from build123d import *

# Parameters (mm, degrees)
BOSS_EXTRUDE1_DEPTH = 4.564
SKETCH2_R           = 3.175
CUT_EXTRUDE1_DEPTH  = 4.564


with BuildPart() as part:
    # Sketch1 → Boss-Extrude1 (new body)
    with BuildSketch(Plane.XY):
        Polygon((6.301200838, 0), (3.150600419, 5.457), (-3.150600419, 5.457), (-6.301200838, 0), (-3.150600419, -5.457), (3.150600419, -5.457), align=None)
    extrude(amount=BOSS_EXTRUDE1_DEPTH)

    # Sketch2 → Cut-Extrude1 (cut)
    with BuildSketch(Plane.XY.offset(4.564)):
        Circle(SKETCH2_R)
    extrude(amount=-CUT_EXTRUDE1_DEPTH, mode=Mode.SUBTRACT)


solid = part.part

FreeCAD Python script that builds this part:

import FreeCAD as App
import Part
import Sketcher
from FreeCAD import Vector
Q = App.Units.Quantity


def add_polygon(sketch, points):
    """Adds a closed chain of lines whose ends are joined by coincident constraints."""
    first, n = sketch.GeometryCount, len(points)
    for a, b in zip(points, points[1:] + points[:1]):
        sketch.addGeometry(Part.LineSegment(App.Vector(*a, 0), App.Vector(*b, 0)), False)
    for i in range(n):
        sketch.addConstraint(Sketcher.Constraint("Coincident", first + i, 2, first + (i + 1) % n, 1))

doc = App.newDocument("Part")
params = doc.addObject("Spreadsheet::Sheet", "Params")
for row, (alias, value) in enumerate([
    ("pad1_length", "4.564 mm"),
    ("sketch2_diameter", "0.25 in"),
    ("pocket1_length", "4.564 mm"),
], start=1):
    params.set(f"A{row}", alias)
    params.set(f"B{row}", "=" + value)
    params.setAlias(f"B{row}", alias)

body = doc.addObject("PartDesign::Body", "Body")

# Sketch on XY plane
sketch1 = body.newObject("Sketcher::SketchObject", "Sketch")
sketch1.AttachmentSupport = (doc.getObject("XY_Plane"), [""])
sketch1.MapMode = "FlatFace"
add_polygon(sketch1, [(6, 0), (3, 5), (-3, 5), (-6, 0), (-3, -5), (3, -5)])  # lines 0-5
sketch1.addConstraint([
    Sketcher.Constraint("Horizontal", 1),
    Sketcher.Constraint("Horizontal", 4),
    Sketcher.Constraint("Symmetric", 0, 2, 3, 2, -1, 1),
    Sketcher.Constraint("Symmetric", 2, 2, 5, 2, -1, 1),
    Sketcher.Constraint("PointOnObject", 2, 2, -1),
    Sketcher.Constraint("Parallel", 2, 5),
    Sketcher.Constraint("Vertical", 1, 2, 3, 2),
    Sketcher.Constraint("Angle", 0, Q("120 deg")),
    Sketcher.Constraint("DistanceX", 1, 2, 1, 1, Q("6.301201 mm")),
    Sketcher.Constraint("Distance", 0, Q("6.301201 mm")),
])
pad1 = body.newObject("PartDesign::Pad", "Pad")
pad1.Profile = sketch1
pad1.setExpression("Length", "Params.pad1_length")

# Sketch on XY plane
sketch2 = body.newObject("Sketcher::SketchObject", "Sketch001")
sketch2.AttachmentSupport = (doc.getObject("XY_Plane"), [""])
sketch2.MapMode = "FlatFace"
sketch2.AttachmentOffset = App.Placement(Vector(0, 0, 4.564), App.Rotation())
sketch2.addGeometry(Part.Circle(Vector(0, 0, 0), Vector(0, 0, 1), 3.2), False)
sketch2.addConstraint([
    Sketcher.Constraint("Coincident", 0, 3, -1, 1),
    Sketcher.Constraint("Diameter", 0, Q("0.25 in")),
])
sketch2.setExpression("Constraints[1]", "Params.sketch2_diameter")
pocket1 = body.newObject("PartDesign::Pocket", "Pocket")
pocket1.Profile = sketch2
pocket1.setExpression("Length", "Params.pocket1_length")

doc.recompute()
